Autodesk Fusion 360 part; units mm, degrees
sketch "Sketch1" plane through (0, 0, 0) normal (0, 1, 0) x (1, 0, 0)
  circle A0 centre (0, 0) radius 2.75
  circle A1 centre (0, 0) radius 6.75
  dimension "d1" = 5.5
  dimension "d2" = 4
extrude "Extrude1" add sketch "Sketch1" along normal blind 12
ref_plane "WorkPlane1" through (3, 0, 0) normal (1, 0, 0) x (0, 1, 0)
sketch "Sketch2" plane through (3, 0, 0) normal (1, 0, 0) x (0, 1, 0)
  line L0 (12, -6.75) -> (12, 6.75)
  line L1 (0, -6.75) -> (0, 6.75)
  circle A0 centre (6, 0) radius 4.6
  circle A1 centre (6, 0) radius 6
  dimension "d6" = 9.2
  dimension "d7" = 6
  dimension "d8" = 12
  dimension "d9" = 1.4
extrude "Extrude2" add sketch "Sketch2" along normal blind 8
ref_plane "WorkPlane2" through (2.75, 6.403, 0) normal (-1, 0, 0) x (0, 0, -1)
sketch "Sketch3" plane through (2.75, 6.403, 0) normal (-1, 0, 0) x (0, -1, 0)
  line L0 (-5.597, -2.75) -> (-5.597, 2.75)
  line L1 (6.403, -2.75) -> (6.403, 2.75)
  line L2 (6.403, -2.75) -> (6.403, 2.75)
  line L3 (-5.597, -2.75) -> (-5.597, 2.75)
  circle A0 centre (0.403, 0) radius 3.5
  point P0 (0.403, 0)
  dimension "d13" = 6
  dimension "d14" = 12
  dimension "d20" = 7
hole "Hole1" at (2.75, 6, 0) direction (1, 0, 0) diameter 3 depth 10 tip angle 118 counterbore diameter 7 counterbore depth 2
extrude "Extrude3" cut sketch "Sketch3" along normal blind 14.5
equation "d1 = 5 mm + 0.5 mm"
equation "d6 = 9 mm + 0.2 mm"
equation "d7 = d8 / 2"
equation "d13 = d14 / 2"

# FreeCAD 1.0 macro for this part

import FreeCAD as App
import Part
import Sketcher

V = App.Vector

doc = App.newDocument("Part")
body = doc.addObject("PartDesign::Body", "Body")

# Sketch on XZ plane
sketch1 = body.newObject("Sketcher::SketchObject", "Sketch")
sketch1.AttachmentSupport = (doc.getObject("XZ_Plane"), [""])
sketch1.MapMode = "FlatFace"
sketch1.addGeometry(Part.Circle(V(0, 0, 0), V(0, 0, 1), 6.75), False)
sketch1.addGeometry(Part.Circle(V(0, 0, 0), V(0, 0, 1), 2.75), False)
sketch1.addConstraint(Sketcher.Constraint("Coincident", 0, 3, -1, 1))
sketch1.addConstraint(Sketcher.Constraint("Coincident", 1, 3, -1, 1))
sketch1.addConstraint(Sketcher.Constraint("Diameter", 1, 5.5))
sketch1.addConstraint(Sketcher.Constraint("Diameter", 0, 13.5))
pad1 = body.newObject("PartDesign::Pad", "Pad")
pad1.Profile = sketch1
pad1.Length = 12
pad1.Reversed = True

# Sketch on YZ plane
sketch2 = body.newObject("Sketcher::SketchObject", "Sketch001")
sketch2.AttachmentSupport = (doc.getObject("YZ_Plane"), [""])
sketch2.MapMode = "FlatFace"
sketch2.AttachmentOffset = App.Placement(V(0, 0, 3), App.Rotation())
sketch2.addGeometry(Part.Circle(V(6, 0, 0), V(0, 0, 1), 6), False)
sketch2.addGeometry(Part.Circle(V(6, 0, 0), V(0, 0, 1), 4.6), False)
sketch2.addConstraint(Sketcher.Constraint("Coincident", 1, 3, 0, 3))
sketch2.addConstraint(Sketcher.Constraint("PointOnObject", 0, 3, -1))
sketch2.addConstraint(Sketcher.Constraint("Diameter", 0, 12.0))
sketch2.addConstraint(Sketcher.Constraint("Diameter", 1, 9.2))
sketch2.addConstraint(Sketcher.Constraint("DistanceX", -1, 1, 0, 3, 6.0))
pad2 = body.newObject("PartDesign::Pad", "Pad001")
pad2.Profile = sketch2
pad2.Length = 8

# Sketch on YZ plane
sketch3 = body.newObject("Sketcher::SketchObject", "Sketch002")
sketch3.AttachmentSupport = (doc.getObject("YZ_Plane"), [""])
sketch3.MapMode = "FlatFace"
sketch3.AttachmentOffset = App.Placement(V(0, 0, 2.75), App.Rotation())
sketch3.addGeometry(Part.Circle(V(6, 0, 0), V(0, 0, 1), 1.5), False)
sketch3.addConstraint(Sketcher.Constraint("PointOnObject", 0, 3, -1))
sketch3.addConstraint(Sketcher.Constraint("Diameter", 0, 3.0))
sketch3.addConstraint(Sketcher.Constraint("DistanceX", -1, 1, 0, 3, 6.0))
doc.recompute()
hole = body.newObject("PartDesign::Hole", "Hole")
hole.Profile = sketch3
hole.ThreadType = "None"
hole.Diameter = 3
hole.DepthType = "Dimension"
hole.Depth = 10
hole.DrillPoint = "Angled"
hole.DrillPointAngle = 118
hole.HoleCutType = "Counterbore"
hole.HoleCutDiameter = 7
hole.HoleCutDepth = 2
hole.Reversed = True

# Sketch on YZ plane
sketch4 = body.newObject("Sketcher::SketchObject", "Sketch003")
sketch4.AttachmentSupport = (doc.getObject("YZ_Plane"), [""])
sketch4.MapMode = "FlatFace"
sketch4.AttachmentOffset = App.Placement(V(0, 0, 2.75), App.Rotation())
sketch4.addGeometry(Part.Circle(V(6, 0, 0), V(0, 0, 1), 3.5), False)
sketch4.addConstraint(Sketcher.Constraint("PointOnObject", 0, 3, -1))
sketch4.addConstraint(Sketcher.Constraint("Diameter", 0, 7.0))
sketch4.addConstraint(Sketcher.Constraint("DistanceX", -1, 1, 0, 3, 6.0))
pocket1 = body.newObject("PartDesign::Pocket", "Pocket")
pocket1.Profile = sketch4
pocket1.Length = 14.5

doc.recompute()
